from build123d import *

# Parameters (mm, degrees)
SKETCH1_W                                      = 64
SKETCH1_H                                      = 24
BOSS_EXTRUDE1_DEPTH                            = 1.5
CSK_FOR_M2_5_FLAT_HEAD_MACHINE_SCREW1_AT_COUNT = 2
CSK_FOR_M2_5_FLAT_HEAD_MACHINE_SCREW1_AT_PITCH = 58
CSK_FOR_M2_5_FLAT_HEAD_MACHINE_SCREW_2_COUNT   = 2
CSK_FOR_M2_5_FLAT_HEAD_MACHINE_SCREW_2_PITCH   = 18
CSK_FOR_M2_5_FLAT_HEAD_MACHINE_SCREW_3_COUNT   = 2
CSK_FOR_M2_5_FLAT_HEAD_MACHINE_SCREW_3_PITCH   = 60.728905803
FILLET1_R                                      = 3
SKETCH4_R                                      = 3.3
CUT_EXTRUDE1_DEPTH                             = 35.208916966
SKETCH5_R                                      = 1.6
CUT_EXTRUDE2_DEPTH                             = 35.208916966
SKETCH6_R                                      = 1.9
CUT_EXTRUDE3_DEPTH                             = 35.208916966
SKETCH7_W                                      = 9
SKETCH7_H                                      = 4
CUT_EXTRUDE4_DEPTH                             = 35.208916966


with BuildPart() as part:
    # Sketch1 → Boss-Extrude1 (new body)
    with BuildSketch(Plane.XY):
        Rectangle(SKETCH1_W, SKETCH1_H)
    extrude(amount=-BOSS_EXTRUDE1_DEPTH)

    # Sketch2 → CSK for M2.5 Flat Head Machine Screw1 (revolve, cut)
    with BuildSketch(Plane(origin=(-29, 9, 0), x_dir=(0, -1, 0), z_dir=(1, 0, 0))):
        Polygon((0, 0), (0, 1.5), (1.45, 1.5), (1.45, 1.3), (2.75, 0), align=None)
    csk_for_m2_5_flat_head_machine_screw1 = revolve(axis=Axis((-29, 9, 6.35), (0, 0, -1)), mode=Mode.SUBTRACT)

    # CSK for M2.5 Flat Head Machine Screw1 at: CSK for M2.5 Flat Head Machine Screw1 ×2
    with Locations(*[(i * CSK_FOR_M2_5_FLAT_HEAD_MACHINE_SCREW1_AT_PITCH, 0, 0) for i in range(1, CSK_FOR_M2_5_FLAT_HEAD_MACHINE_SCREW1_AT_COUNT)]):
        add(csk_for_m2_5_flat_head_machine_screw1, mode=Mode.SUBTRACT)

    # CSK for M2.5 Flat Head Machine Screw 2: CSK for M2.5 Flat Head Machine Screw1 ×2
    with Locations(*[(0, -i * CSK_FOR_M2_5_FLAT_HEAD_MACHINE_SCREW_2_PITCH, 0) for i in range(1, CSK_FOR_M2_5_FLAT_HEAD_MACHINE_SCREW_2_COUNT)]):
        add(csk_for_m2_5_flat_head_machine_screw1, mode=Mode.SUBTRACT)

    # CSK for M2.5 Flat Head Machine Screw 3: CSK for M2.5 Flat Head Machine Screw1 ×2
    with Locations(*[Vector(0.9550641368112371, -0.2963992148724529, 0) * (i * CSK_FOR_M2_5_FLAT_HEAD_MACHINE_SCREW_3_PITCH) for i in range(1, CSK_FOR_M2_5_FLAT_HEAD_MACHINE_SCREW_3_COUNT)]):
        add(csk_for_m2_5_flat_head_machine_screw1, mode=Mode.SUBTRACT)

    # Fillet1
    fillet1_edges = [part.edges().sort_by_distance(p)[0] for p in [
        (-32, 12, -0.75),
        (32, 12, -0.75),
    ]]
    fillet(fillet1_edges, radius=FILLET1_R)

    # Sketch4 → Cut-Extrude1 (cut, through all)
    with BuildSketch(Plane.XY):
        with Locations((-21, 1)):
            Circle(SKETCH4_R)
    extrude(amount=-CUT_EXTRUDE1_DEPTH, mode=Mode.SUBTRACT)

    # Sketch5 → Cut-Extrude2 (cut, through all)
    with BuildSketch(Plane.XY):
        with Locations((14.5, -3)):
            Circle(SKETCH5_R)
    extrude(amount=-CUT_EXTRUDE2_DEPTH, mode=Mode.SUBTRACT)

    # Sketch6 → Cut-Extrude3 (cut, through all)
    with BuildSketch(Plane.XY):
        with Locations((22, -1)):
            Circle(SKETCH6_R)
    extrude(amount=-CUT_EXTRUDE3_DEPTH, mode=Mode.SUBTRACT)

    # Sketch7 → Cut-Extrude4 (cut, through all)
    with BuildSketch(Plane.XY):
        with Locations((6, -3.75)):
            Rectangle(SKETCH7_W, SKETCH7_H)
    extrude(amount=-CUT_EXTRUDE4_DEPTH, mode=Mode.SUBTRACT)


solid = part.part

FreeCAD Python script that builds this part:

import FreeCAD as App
import Part
import Sketcher

V = App.Vector
Q = App.Units.Quantity


def edges_at(feature, points):
    """Names of the edges that pass closest to the given points."""
    edges = feature.Shape.Edges
    near = lambda p: min(range(len(edges)), key=lambda i: edges[i].distToShape(Part.Vertex(*p))[0])
    return sorted({f"Edge{near(p) + 1}" for p in points})

doc = App.newDocument("Part")
body = doc.addObject("PartDesign::Body", "Body")

sketch1 = body.newObject("Sketcher::SketchObject", "Sketch")
sketch1.AttachmentSupport = (doc.getObject("XY_Plane"), [""])
sketch1.MapMode = "FlatFace"
sketch1.addGeometry(Part.LineSegment(V(-32, 12, 0), V(-32, -12, 0)), False)
sketch1.addGeometry(Part.LineSegment(V(-32, -12, 0), V(32, -12, 0)), False)
sketch1.addGeometry(Part.LineSegment(V(32, -12, 0), V(32, 12, 0)), False)
sketch1.addGeometry(Part.LineSegment(V(32, 12, 0), V(-32, 12, 0)), False)
sketch1.addConstraint(Sketcher.Constraint("Coincident", 0, 2, 1, 1))
sketch1.addConstraint(Sketcher.Constraint("Coincident", 1, 2, 2, 1))
sketch1.addConstraint(Sketcher.Constraint("Coincident", 2, 2, 3, 1))
sketch1.addConstraint(Sketcher.Constraint("Coincident", 3, 2, 0, 1))
sketch1.addConstraint(Sketcher.Constraint("Vertical", 0))
sketch1.addConstraint(Sketcher.Constraint("Horizontal", 1))
sketch1.addConstraint(Sketcher.Constraint("Vertical", 2))
sketch1.addConstraint(Sketcher.Constraint("Horizontal", 3))
sketch1.addConstraint(Sketcher.Constraint("Symmetric", 0, 2, 2, 2, -1, 1))
sketch1.addConstraint(Sketcher.Constraint("DistanceX", 1, 1, 1, 2, 64.0))
sketch1.addConstraint(Sketcher.Constraint("DistanceY", 0, 2, 0, 1, 24.0))
pad1 = body.newObject("PartDesign::Pad", "Pad")
pad1.Profile = sketch1
pad1.Length = 1.5
pad1.Reversed = True

sketch2 = body.newObject("Sketcher::SketchObject", "Sketch001")
sketch2.AttachmentSupport = (doc.getObject("YZ_Plane"), [""])
sketch2.MapMode = "FlatFace"
sketch2.AttachmentOffset = App.Placement(V(0, 0, -29), App.Rotation())
sketch2.addGeometry(Part.LineSegment(V(9, -1.5, 0), V(9, 0, 0)), False)
sketch2.addGeometry(Part.LineSegment(V(9, 0, 0), V(6.25, 0, 0)), False)
sketch2.addGeometry(Part.LineSegment(V(6.25, 0, 0), V(7.55, -1.3, 0)), False)
sketch2.addGeometry(Part.LineSegment(V(7.55, -1.3, 0), V(7.55, -1.5, 0)), False)
sketch2.addGeometry(Part.LineSegment(V(7.55, -1.5, 0), V(9, -1.5, 0)), False)
sketch2.addGeometry(Part.LineSegment(V(9, 0, 0), V(9, -1.5, 0)), True)
sketch2.addConstraint(Sketcher.Constraint("Coincident", 0, 2, 1, 1))
sketch2.addConstraint(Sketcher.Constraint("Coincident", 1, 2, 2, 1))
sketch2.addConstraint(Sketcher.Constraint("Coincident", 2, 2, 3, 1))
sketch2.addConstraint(Sketcher.Constraint("Coincident", 3, 2, 4, 1))
sketch2.addConstraint(Sketcher.Constraint("Coincident", 4, 2, 0, 1))
sketch2.addConstraint(Sketcher.Constraint("Vertical", 0))
sketch2.addConstraint(Sketcher.Constraint("Horizontal", 1))
sketch2.addConstraint(Sketcher.Constraint("Vertical", 3))
sketch2.addConstraint(Sketcher.Constraint("Horizontal", 4))
sketch2.addConstraint(Sketcher.Constraint("Vertical", 5))
sketch2.addConstraint(Sketcher.Constraint("Coincident", 5, 1, 0, 2))
sketch2.addConstraint(Sketcher.Constraint("PointOnObject", 0, 2, -1))
sketch2.addConstraint(Sketcher.Constraint("Horizontal", 3, 2, 5, 2))
sketch2.addConstraint(Sketcher.Constraint("Angle", 2, Q("-45 deg")))
sketch2.addConstraint(Sketcher.Constraint("DistanceY", 0, 1, 0, 2, 1.5))
sketch2.addConstraint(Sketcher.Constraint("DistanceY", 3, 2, 3, 1, 0.2))
sketch2.addConstraint(Sketcher.Constraint("DistanceX", -1, 1, 0, 2, 9.0))
sketch2.addConstraint(Sketcher.Constraint("DistanceX", 1, 2, 1, 1, 2.75))
groove = body.newObject("PartDesign::Groove", "Groove")
groove.Profile = sketch2
groove.ReferenceAxis = (sketch2, ["Axis0"])
groove.Angle = 360
doc.recompute()

linearpattern = body.newObject("PartDesign::LinearPattern", "LinearPattern")
linearpattern.Originals = [groove]
linearpattern.Direction = (doc.getObject("X_Axis"), [""])
linearpattern.Mode = "offset"
linearpattern.Offset = 58
linearpattern.Occurrences = 2
body.Tip = linearpattern
doc.recompute()

linearpattern2 = body.newObject("PartDesign::LinearPattern", "LinearPattern001")
linearpattern2.Originals = [groove]
linearpattern2.Direction = (doc.getObject("Y_Axis"), [""])
linearpattern2.Mode = "offset"
linearpattern2.Offset = 18
linearpattern2.Occurrences = 2
linearpattern2.Reversed = True
body.Tip = linearpattern2
doc.recompute()

datumline = body.newObject("PartDesign::Line", "DatumLine")
datumline.Placement = App.Placement(V(0, 0, 0), App.Rotation(V(0, 0, 1), V(0.955064137, -0.296399215, 0)))
linearpattern3 = body.newObject("PartDesign::LinearPattern", "LinearPattern002")
linearpattern3.Originals = [groove]
linearpattern3.Direction = (datumline, [""])
linearpattern3.Mode = "offset"
linearpattern3.Offset = 60.728906
linearpattern3.Occurrences = 2
body.Tip = linearpattern3
doc.recompute()

fillet = body.newObject("PartDesign::Fillet", "Fillet")
fillet.Base = (linearpattern3, edges_at(linearpattern3, [(-32, 12, -0.75), (32, 12, -0.75)]))
fillet.Radius = 3

sketch3 = body.newObject("Sketcher::SketchObject", "Sketch002")
sketch3.AttachmentSupport = (doc.getObject("XY_Plane"), [""])
sketch3.MapMode = "FlatFace"
sketch3.addGeometry(Part.Circle(V(-21, 1, 0), V(0, 0, 1), 3.3), False)
sketch3.addConstraint(Sketcher.Constraint("Diameter", 0, 6.6))
sketch3.addConstraint(Sketcher.Constraint("DistanceX", 0, 3, -1, 1, 21.0))
sketch3.addConstraint(Sketcher.Constraint("DistanceY", -1, 1, 0, 3, 1.0))
pocket1 = body.newObject("PartDesign::Pocket", "Pocket")
pocket1.Profile = sketch3
pocket1.Type = "ThroughAll"

sketch4 = body.newObject("Sketcher::SketchObject", "Sketch003")
sketch4.AttachmentSupport = (doc.getObject("XY_Plane"), [""])
sketch4.MapMode = "FlatFace"
sketch4.addGeometry(Part.Circle(V(14.5, -3, 0), V(0, 0, 1), 1.6), False)
sketch4.addConstraint(Sketcher.Constraint("Diameter", 0, 3.2))
sketch4.addConstraint(Sketcher.Constraint("DistanceY", 0, 3, -1, 1, 3.0))
sketch4.addConstraint(Sketcher.Constraint("DistanceX", -1, 1, 0, 3, 14.5))
pocket2 = body.newObject("PartDesign::Pocket", "Pocket001")
pocket2.Profile = sketch4
pocket2.Type = "ThroughAll"

sketch5 = body.newObject("Sketcher::SketchObject", "Sketch004")
sketch5.AttachmentSupport = (doc.getObject("XY_Plane"), [""])
sketch5.MapMode = "FlatFace"
sketch5.addGeometry(Part.Circle(V(22, -1, 0), V(0, 0, 1), 1.9), False)
sketch5.addConstraint(Sketcher.Constraint("Diameter", 0, 3.8))
sketch5.addConstraint(Sketcher.Constraint("DistanceX", -1, 1, 0, 3, 22.0))
sketch5.addConstraint(Sketcher.Constraint("DistanceY", 0, 3, -1, 1, 1.0))
pocket3 = body.newObject("PartDesign::Pocket", "Pocket002")
pocket3.Profile = sketch5
pocket3.Type = "ThroughAll"

sketch6 = body.newObject("Sketcher::SketchObject", "Sketch005")
sketch6.AttachmentSupport = (doc.getObject("XY_Plane"), [""])
sketch6.MapMode = "FlatFace"
sketch6.addGeometry(Part.LineSegment(V(1.5, -1.8, 0), V(1.5, -5.8, 0)), False)
sketch6.addGeometry(Part.LineSegment(V(1.5, -5.8, 0), V(10.5, -5.8, 0)), False)
sketch6.addGeometry(Part.LineSegment(V(10.5, -5.8, 0), V(10.5, -1.8, 0)), False)
sketch6.addGeometry(Part.LineSegment(V(10.5, -1.8, 0), V(1.5, -1.8, 0)), False)
sketch6.addConstraint(Sketcher.Constraint("Coincident", 0, 2, 1, 1))
sketch6.addConstraint(Sketcher.Constraint("Coincident", 1, 2, 2, 1))
sketch6.addConstraint(Sketcher.Constraint("Coincident", 2, 2, 3, 1))
sketch6.addConstraint(Sketcher.Constraint("Coincident", 3, 2, 0, 1))
sketch6.addConstraint(Sketcher.Constraint("Vertical", 0))
sketch6.addConstraint(Sketcher.Constraint("Horizontal", 1))
sketch6.addConstraint(Sketcher.Constraint("Vertical", 2))
sketch6.addConstraint(Sketcher.Constraint("Horizontal", 3))
sketch6.addConstraint(Sketcher.Constraint("DistanceX", 1, 1, 1, 2, 9.0))
sketch6.addConstraint(Sketcher.Constraint("DistanceY", 0, 2, 0, 1, 4.0))
sketch6.addConstraint(Sketcher.Constraint("DistanceX", -1, 1, 0, 2, 1.5))
sketch6.addConstraint(Sketcher.Constraint("DistanceY", 0, 2, -1, 1, 5.75))
pocket4 = body.newObject("PartDesign::Pocket", "Pocket003")
pocket4.Profile = sketch6
pocket4.Type = "ThroughAll"

doc.recompute()
